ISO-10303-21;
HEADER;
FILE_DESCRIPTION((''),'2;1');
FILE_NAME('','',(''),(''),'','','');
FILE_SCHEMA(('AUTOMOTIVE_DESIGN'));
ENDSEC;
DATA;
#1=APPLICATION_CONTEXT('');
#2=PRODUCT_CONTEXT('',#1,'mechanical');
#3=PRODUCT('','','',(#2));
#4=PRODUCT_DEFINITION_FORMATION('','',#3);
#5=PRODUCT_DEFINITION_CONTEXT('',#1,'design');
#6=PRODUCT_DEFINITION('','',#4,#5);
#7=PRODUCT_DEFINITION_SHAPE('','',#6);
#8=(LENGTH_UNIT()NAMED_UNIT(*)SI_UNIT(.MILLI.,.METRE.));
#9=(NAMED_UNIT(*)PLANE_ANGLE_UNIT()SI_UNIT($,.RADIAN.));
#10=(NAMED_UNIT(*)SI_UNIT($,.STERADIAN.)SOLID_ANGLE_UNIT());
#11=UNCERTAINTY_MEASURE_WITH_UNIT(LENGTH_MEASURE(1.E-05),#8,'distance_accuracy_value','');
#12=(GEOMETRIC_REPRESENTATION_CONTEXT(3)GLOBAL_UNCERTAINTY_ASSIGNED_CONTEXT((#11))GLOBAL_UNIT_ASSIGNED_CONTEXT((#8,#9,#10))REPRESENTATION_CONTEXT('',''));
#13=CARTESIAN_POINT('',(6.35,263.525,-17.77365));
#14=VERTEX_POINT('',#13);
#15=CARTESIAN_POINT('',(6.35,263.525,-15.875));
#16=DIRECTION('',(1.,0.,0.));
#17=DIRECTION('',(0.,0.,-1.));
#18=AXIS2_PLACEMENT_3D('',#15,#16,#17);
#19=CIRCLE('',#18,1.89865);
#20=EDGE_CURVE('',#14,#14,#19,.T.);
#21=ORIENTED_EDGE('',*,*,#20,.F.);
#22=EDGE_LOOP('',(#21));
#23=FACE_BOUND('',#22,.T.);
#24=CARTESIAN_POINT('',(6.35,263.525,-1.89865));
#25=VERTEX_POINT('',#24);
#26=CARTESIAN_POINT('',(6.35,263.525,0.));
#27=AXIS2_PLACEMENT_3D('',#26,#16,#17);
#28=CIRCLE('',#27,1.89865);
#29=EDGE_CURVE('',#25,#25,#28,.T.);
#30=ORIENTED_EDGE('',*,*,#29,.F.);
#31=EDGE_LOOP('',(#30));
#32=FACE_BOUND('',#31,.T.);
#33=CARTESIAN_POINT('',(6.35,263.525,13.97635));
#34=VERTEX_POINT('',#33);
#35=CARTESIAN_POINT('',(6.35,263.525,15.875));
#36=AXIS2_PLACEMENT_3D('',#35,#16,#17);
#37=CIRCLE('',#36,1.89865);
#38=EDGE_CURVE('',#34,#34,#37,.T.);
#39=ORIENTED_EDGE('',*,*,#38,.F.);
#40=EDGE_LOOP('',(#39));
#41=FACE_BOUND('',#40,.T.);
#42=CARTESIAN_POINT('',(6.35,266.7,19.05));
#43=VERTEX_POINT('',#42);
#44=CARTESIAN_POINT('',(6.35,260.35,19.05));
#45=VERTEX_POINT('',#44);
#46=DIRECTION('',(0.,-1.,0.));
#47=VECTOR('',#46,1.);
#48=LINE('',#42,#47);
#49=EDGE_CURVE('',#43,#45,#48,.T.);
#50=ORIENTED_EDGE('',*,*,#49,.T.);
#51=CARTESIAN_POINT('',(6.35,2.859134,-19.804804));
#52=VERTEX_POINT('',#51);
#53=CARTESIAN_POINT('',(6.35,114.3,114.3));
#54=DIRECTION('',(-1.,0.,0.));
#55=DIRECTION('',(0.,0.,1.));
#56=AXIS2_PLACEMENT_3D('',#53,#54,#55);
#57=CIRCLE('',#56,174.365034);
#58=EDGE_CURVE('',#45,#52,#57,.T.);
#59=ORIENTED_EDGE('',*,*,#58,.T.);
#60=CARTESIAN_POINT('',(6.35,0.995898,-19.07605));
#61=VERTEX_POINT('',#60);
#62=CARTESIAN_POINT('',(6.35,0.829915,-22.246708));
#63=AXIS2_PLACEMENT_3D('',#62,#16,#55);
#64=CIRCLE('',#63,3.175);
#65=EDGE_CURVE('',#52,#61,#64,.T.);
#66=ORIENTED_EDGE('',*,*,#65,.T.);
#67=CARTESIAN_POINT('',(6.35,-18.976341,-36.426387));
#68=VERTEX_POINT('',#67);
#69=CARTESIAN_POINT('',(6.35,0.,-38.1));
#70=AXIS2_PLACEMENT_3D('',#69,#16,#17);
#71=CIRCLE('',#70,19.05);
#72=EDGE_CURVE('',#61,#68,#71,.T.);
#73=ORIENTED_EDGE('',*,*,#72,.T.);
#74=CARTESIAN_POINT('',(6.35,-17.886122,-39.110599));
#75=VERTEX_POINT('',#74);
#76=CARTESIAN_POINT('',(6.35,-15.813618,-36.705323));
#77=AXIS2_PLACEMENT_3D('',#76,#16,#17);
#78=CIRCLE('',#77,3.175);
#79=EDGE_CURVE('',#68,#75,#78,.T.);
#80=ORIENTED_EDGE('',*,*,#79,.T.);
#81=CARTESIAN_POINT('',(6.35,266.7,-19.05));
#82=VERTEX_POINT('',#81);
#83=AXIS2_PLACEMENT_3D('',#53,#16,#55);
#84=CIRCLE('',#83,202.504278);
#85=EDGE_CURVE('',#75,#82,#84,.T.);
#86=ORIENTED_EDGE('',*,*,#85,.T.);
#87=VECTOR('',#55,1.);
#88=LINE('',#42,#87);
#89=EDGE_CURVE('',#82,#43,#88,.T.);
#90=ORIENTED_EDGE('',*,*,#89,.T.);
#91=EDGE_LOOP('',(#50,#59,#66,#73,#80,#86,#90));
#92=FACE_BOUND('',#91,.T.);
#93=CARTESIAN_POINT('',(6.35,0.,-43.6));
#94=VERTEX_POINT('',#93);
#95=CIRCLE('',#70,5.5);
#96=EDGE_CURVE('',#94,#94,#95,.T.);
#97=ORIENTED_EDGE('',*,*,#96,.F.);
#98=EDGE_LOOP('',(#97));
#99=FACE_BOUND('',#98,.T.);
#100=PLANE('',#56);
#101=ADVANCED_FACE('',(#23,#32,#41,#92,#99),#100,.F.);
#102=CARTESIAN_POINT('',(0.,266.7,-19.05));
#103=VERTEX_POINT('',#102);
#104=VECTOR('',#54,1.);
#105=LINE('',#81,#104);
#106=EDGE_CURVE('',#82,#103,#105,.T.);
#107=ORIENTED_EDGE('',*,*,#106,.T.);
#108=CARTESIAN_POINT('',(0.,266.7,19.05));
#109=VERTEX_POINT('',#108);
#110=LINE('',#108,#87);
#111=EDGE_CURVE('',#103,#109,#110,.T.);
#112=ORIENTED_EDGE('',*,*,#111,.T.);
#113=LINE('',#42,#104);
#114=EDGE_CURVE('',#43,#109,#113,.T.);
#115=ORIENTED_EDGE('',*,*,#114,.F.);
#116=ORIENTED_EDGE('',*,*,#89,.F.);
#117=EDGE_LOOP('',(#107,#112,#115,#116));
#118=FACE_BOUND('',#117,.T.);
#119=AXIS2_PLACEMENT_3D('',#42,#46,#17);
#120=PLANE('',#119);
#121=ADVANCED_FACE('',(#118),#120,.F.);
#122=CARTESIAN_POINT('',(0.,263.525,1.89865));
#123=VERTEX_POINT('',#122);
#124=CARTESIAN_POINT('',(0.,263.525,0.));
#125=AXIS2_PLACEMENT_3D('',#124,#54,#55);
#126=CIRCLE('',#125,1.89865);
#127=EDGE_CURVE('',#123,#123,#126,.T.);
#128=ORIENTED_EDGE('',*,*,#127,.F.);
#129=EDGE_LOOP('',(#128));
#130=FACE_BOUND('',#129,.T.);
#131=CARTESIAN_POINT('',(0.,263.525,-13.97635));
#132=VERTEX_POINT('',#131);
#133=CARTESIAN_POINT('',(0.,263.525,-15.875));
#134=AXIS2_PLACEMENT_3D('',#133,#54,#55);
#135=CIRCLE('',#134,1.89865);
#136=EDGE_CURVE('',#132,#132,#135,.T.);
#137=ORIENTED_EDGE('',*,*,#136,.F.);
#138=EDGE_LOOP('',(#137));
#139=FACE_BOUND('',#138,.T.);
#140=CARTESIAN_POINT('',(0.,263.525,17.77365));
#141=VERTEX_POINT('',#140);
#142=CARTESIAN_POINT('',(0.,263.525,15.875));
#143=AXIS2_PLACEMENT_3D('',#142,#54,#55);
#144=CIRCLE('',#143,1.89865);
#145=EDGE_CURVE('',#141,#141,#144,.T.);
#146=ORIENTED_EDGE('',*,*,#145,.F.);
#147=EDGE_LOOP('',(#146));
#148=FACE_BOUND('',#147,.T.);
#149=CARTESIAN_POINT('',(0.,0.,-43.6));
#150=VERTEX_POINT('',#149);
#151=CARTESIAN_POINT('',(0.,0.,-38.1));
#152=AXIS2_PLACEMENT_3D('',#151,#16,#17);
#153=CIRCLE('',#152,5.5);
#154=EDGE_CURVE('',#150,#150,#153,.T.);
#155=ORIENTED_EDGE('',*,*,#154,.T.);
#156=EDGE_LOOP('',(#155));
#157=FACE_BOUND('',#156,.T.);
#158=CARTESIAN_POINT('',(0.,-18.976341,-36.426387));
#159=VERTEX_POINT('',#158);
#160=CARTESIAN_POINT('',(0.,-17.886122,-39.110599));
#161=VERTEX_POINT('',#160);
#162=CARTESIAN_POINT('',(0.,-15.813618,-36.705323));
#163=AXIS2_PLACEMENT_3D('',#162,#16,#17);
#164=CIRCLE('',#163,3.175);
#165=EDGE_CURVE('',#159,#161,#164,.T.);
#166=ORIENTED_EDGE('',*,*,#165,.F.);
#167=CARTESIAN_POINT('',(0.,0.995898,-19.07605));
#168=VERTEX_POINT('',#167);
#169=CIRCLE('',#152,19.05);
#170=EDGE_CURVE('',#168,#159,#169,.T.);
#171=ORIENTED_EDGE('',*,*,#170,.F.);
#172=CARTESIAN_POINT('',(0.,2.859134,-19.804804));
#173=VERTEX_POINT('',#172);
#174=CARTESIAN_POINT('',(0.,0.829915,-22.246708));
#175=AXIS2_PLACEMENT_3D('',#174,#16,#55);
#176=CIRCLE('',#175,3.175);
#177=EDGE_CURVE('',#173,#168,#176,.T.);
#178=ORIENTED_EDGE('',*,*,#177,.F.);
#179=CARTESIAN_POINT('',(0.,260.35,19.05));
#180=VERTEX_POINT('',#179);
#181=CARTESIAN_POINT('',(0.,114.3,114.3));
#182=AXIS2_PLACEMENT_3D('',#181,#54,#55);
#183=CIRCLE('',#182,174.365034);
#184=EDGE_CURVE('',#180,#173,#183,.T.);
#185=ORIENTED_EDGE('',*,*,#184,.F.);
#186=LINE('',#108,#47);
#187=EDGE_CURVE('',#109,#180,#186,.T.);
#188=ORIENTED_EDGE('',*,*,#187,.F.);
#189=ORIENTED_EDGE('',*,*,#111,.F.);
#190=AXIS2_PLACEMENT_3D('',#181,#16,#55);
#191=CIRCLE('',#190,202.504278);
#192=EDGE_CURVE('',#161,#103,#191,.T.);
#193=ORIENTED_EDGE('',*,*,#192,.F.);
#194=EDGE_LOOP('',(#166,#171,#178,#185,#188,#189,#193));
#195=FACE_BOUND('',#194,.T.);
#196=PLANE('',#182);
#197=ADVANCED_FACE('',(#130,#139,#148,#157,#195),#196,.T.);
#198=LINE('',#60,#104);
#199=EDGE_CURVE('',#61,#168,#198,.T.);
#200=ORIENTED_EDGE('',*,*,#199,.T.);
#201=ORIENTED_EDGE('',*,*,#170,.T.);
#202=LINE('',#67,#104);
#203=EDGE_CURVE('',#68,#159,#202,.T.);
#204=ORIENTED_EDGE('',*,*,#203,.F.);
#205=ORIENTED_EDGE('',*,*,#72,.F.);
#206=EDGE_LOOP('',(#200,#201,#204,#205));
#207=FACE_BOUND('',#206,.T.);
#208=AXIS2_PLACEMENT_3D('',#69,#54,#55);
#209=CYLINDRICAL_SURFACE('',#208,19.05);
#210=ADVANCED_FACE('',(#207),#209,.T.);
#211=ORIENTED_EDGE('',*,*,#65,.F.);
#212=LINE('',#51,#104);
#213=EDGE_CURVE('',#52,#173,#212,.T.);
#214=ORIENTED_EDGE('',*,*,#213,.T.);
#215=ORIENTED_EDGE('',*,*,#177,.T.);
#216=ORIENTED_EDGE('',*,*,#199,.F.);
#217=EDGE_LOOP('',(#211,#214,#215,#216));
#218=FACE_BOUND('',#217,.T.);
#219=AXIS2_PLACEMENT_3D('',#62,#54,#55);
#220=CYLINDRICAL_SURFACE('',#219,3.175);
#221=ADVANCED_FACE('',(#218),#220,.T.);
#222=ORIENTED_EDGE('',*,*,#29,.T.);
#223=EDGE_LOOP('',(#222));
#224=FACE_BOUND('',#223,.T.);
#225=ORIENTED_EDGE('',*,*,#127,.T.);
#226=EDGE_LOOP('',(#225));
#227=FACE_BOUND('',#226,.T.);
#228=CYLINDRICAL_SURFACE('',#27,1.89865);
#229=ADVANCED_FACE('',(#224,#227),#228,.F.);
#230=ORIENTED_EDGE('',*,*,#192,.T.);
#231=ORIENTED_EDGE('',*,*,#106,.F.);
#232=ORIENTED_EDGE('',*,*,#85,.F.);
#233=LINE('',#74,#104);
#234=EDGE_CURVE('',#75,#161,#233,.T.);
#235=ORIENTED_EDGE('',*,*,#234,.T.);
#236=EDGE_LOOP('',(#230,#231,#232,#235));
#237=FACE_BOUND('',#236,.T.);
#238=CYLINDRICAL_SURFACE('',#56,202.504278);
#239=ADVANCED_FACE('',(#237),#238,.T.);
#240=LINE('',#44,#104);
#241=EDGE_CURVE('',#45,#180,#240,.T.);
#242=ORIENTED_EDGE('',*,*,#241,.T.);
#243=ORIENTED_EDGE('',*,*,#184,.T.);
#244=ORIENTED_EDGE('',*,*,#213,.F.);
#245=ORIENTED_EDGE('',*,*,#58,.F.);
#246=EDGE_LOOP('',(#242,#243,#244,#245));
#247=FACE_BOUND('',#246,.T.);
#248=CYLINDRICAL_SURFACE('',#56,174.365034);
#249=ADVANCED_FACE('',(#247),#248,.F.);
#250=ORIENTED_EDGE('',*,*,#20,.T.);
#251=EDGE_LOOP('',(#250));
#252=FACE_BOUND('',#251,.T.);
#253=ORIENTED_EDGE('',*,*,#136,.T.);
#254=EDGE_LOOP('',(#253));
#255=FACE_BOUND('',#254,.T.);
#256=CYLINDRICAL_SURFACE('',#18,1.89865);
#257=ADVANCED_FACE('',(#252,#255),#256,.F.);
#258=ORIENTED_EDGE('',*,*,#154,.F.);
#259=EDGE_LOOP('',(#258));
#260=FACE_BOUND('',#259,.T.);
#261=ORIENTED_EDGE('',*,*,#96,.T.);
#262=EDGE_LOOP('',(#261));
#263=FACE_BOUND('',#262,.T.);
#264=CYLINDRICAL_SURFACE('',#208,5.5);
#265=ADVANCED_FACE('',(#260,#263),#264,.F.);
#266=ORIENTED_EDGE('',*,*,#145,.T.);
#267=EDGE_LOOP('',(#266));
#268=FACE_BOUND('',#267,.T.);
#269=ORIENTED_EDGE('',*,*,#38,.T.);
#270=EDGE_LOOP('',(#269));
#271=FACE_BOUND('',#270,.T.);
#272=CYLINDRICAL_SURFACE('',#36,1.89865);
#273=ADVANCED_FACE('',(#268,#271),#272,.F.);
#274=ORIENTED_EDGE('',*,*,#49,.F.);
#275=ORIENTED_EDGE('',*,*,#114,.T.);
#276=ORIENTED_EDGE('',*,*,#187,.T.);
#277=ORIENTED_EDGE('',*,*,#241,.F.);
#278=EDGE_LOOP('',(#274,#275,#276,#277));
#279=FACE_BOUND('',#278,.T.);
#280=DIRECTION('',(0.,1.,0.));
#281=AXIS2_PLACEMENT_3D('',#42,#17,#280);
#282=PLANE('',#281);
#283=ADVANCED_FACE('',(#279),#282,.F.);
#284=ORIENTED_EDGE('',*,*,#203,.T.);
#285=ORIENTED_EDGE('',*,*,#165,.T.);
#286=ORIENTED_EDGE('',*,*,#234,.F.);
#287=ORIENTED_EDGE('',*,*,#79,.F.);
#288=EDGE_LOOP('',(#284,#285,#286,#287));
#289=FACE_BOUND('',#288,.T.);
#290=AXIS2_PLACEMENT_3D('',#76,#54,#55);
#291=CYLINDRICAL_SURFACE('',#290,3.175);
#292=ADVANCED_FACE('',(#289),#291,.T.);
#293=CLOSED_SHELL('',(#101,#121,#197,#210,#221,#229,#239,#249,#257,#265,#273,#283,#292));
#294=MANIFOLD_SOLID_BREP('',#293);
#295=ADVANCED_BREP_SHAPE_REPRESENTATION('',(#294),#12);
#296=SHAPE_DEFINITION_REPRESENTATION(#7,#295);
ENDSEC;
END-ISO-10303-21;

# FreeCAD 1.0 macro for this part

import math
import FreeCAD as App
import Part
import Sketcher

V = App.Vector
Q = App.Units.Quantity

doc = App.newDocument("Part")
body = doc.addObject("PartDesign::Body", "Body")

sketch1 = doc.addObject("Sketcher::SketchObject", "Sketch")
body.addObject(sketch1)
sketch1.AttachmentSupport = (doc.YZ_Plane, [""])
sketch1.MapMode = "FlatFace"
sketch1.addGeometry([
    Part.LineSegment(V(266.7, -19.1, 0), V(266.7, 19.1, 0)),
    Part.LineSegment(V(266.7, 19.1, 0), V(260.4, 19.1, 0)),
    Part.ArcOfCircle(Part.Circle(V(114.3, 114.3, 0), V(0, 0, 1), 174.4), math.radians(-130), math.radians(-33)),
    Part.ArcOfCircle(Part.Circle(V(0.8, -22.2, 0), V(0, 0, 1), 3.2), math.radians(50), math.radians(87)),
    Part.ArcOfCircle(Part.Circle(V(0, -38.1, 0), V(0, 0, 1), 19), math.radians(87), math.radians(175)),
    Part.ArcOfCircle(Part.Circle(V(-15.8, -36.7, 0), V(0, 0, 1), 3.2), math.radians(175), math.radians(229)),
    Part.ArcOfCircle(Part.Circle(V(114.3, 114.3, 0), V(0, 0, 1), 202.5), math.radians(-131), math.radians(-41)),
    Part.Circle(V(0, -38.1, 0), V(0, 0, 1), 5.5),
], False)
sketch1.addConstraint([
    Sketcher.Constraint("Coincident", 0, 2, 1, 1),
    Sketcher.Constraint("Coincident", 1, 2, 2, 2),
    Sketcher.Constraint("Tangent", 2, 1, 3, 1),
    Sketcher.Constraint("Tangent", 3, 2, 4, 1),
    Sketcher.Constraint("Tangent", 4, 2, 5, 1),
    Sketcher.Constraint("Tangent", 5, 2, 6, 1),
    Sketcher.Constraint("Coincident", 6, 2, 0, 1),
    Sketcher.Constraint("Vertical", 0),
    Sketcher.Constraint("Horizontal", 1),
    Sketcher.Constraint("Coincident", 6, 3, 2, 3),
    Sketcher.Constraint("Coincident", 7, 3, 4, 3),
    Sketcher.Constraint("Equal", 3, 5),
    Sketcher.Constraint("PointOnObject", 4, 3, -2),
    Sketcher.Constraint("Radius", 4, Q("0.75 in")),
    Sketcher.Constraint("DistanceY", 0, 1, 0, 2, Q("1.5 in")),
    Sketcher.Constraint("Radius", 3, Q("0.125 in")),
    Sketcher.Constraint("DistanceY", 4, 3, 2, 3, Q("6 in")),
    Sketcher.Constraint("DistanceX", 2, 3, 0, 2, Q("6 in")),
    Sketcher.Constraint("DistanceX", 1, 2, 1, 1, Q("0.25 in")),
    Sketcher.Constraint("DistanceX", -1, 1, 2, 3, Q("4.5 in")),
    Sketcher.Constraint("DistanceY", -1, 1, 2, 3, Q("4.5 in")),
    Sketcher.Constraint("Diameter", 7, Q("11 mm")),
    Sketcher.Constraint("DistanceY", -1, 1, 0, 2, Q("0.75 in")),
])
pad1 = doc.addObject("PartDesign::Pad", "Pad")
body.addObject(pad1)
pad1.Profile = sketch1
pad1.Length = Q("0.25 in")

sketch2 = doc.addObject("Sketcher::SketchObject", "Sketch001")
body.addObject(sketch2)
sketch2.AttachmentSupport = (doc.YZ_Plane, [""])
sketch2.MapMode = "FlatFace"
sketch2.AttachmentOffset = App.Placement(V(0, 0, 0.25 * 25.4), App.Rotation())
sketch2.addGeometry([
    Part.Circle(V(263.5, 15.9, 0), V(0, 0, 1), 1.9),
    Part.Circle(V(263.5, 0, 0), V(0, 0, 1), 1.9),
    Part.Circle(V(263.5, -15.9, 0), V(0, 0, 1), 1.9),
], False)
sketch2.addConstraint([
    Sketcher.Constraint("Equal", 0, 1),
    Sketcher.Constraint("Equal", 1, 2),
    Sketcher.Constraint("Symmetric", 0, 3, 2, 3, -1),
    Sketcher.Constraint("PointOnObject", 1, 3, -1),
    Sketcher.Constraint("Vertical", 0, 3, 1, 3),
    Sketcher.Constraint("Diameter", 0, Q("0.1495 in")),
    Sketcher.Constraint("DistanceY", 2, 3, 0, 3, Q("1.25 in")),
    Sketcher.Constraint("DistanceX", -1, 1, 0, 3, Q("10.375 in")),
])
doc.recompute()
hole = doc.addObject("PartDesign::Hole", "Hole")
body.addObject(hole)
hole.Profile = sketch2
hole.ThreadType = "None"
hole.Diameter = Q("0.1495 in")
hole.DepthType = "Dimension"
hole.Depth = Q("0.25 in")
hole.DrillPoint = "Flat"

doc.recompute()
